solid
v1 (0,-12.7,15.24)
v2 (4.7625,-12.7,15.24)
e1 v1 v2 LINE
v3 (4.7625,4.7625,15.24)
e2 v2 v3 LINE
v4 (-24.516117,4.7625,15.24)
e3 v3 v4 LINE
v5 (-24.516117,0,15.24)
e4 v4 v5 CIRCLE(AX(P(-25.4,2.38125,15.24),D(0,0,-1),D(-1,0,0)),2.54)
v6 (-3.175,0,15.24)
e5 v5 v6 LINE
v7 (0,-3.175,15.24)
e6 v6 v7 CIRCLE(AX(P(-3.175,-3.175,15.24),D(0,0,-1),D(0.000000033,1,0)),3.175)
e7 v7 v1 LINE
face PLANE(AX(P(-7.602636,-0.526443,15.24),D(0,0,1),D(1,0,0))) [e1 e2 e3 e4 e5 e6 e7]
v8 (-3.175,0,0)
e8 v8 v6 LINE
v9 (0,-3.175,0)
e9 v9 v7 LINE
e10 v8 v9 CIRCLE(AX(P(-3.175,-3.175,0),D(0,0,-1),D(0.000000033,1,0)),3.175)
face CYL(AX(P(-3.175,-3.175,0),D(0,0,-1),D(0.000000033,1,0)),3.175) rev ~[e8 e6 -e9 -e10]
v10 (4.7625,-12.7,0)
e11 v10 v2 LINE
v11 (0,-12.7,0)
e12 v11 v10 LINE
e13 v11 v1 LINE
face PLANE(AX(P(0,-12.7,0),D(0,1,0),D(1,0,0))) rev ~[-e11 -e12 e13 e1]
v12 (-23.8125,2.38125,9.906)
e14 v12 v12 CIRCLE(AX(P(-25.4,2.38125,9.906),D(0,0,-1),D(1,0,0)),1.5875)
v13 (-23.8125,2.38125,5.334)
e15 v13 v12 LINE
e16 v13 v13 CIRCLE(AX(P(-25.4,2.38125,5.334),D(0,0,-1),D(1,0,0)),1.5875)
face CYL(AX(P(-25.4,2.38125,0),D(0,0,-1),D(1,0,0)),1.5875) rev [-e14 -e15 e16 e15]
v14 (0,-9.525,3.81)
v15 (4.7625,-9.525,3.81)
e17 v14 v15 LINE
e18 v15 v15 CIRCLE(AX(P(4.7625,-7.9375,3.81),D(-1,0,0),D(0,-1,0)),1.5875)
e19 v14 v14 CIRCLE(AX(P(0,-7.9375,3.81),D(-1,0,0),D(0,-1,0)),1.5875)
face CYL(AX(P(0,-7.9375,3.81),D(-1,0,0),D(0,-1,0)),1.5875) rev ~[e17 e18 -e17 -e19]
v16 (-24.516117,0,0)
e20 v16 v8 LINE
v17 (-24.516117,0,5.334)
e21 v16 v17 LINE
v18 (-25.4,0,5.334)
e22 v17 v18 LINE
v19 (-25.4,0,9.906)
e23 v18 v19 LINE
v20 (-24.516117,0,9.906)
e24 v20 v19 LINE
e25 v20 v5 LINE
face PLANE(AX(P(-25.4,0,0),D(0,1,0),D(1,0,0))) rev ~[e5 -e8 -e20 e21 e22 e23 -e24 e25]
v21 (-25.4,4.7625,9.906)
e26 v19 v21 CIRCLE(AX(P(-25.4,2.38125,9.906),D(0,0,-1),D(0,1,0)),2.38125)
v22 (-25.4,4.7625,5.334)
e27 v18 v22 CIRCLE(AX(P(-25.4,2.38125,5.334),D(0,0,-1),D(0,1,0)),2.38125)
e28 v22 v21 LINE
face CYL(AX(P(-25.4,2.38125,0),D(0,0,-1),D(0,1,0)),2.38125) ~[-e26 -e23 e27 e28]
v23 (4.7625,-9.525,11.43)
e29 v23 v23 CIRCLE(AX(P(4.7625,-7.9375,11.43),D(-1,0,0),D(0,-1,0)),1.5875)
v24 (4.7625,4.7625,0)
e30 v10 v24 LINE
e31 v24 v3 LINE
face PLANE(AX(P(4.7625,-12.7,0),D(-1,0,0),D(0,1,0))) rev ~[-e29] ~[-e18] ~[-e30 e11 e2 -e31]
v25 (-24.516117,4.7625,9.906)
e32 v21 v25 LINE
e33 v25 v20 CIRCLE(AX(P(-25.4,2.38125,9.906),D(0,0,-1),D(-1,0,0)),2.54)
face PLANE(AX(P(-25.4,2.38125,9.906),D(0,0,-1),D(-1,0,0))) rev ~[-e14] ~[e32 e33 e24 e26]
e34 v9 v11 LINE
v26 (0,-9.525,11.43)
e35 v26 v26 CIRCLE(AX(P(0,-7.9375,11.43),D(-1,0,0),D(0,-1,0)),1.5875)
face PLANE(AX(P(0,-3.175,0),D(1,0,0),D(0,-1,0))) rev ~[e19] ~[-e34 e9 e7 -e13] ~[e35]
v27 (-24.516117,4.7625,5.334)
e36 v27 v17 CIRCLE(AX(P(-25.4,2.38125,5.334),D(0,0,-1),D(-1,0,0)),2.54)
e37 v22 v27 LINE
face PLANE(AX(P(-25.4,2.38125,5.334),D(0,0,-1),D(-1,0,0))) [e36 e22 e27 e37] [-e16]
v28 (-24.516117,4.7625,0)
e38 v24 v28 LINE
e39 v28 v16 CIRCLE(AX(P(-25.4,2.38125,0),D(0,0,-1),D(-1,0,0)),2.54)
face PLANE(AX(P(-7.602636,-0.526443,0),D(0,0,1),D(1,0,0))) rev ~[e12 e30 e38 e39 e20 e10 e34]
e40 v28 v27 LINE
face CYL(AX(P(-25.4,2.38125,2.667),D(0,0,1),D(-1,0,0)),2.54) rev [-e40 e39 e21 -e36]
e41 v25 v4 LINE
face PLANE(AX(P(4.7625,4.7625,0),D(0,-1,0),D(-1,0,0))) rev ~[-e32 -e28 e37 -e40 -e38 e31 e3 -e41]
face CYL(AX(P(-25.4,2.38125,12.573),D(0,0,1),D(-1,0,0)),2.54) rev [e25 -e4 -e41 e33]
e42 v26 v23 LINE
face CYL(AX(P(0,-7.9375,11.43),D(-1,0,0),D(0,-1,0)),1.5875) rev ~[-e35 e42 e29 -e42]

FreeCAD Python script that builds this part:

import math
import FreeCAD as App
import Part
import Sketcher

V = App.Vector
Q = App.Units.Quantity

doc = App.newDocument("Part")
body = doc.addObject("PartDesign::Body", "Body")

# Sketch on XY plane
sketch1 = body.newObject("Sketcher::SketchObject", "Sketch")
sketch1.AttachmentSupport = (doc.getObject("XY_Plane"), [""])
sketch1.MapMode = "FlatFace"
sketch1.addGeometry([
    Part.ArcOfCircle(Part.Circle(V(-3.175, -3.175, 0), V(0, 0, 1), 3.175), math.radians(0.000002), math.radians(89.999998)),  # 0
    Part.LineSegment(V(0, -3.175, 0), V(0, -12.7, 0)),  # 1
    Part.LineSegment(V(0, -12.7, 0), V(4.7625, -12.7, 0)),  # 2
    Part.LineSegment(V(4.7625, -12.7, 0), V(4.7625, 4.7625, 0)),  # 3
    Part.LineSegment(V(4.7625, 4.7625, 0), V(-25.4, 4.7625, 0)),  # 4
    Part.ArcOfCircle(Part.Circle(V(-25.4, 2.38125, 0), V(0, 0, 1), 2.38125), math.radians(90), math.radians(270)),  # 5
    Part.LineSegment(V(-25.4, 0, 0), V(-3.175, 0, 0)),  # 6
    Part.Circle(V(-25.4, 2.38125, 0), V(0, 0, 1), 1.5875),  # 7
], False)
sketch1.addConstraint([
    Sketcher.Constraint("Tangent", 0, 1, 1, 1),
    Sketcher.Constraint("Coincident", 1, 2, 2, 1),
    Sketcher.Constraint("Coincident", 2, 2, 3, 1),
    Sketcher.Constraint("Coincident", 3, 2, 4, 1),
    Sketcher.Constraint("Tangent", 4, 2, 5, 1),
    Sketcher.Constraint("Tangent", 5, 2, 6, 1),
    Sketcher.Constraint("Tangent", 6, 2, 0, 2),
    Sketcher.Constraint("Vertical", 1),
    Sketcher.Constraint("Horizontal", 2),
    Sketcher.Constraint("Vertical", 3),
    Sketcher.Constraint("Horizontal", 4),
    Sketcher.Constraint("Horizontal", 6),
    Sketcher.Constraint("Coincident", 7, 3, 5, 3),
    Sketcher.Constraint("PointOnObject", 0, 1, -2),
    Sketcher.Constraint("PointOnObject", 5, 2, -1),
    Sketcher.Constraint("Diameter", 7, Q("0.125 in")),
    Sketcher.Constraint("DistanceX", 5, 3, -1, 1, Q("1 in")),
    Sketcher.Constraint("Radius", 0, Q("0.125 in")),
    Sketcher.Constraint("Radius", 5, Q("0.09375 in")),
    Sketcher.Constraint("DistanceY", 1, 2, -1, 1, Q("0.5 in")),
    Sketcher.Constraint("DistanceX", 2, 1, 2, 2, Q("0.1875 in")),
])
pad1 = body.newObject("PartDesign::Pad", "Pad")
pad1.Profile = sketch1
pad1.Length = Q("0.6 in")

# Sketch on XZ plane
sketch2 = body.newObject("Sketcher::SketchObject", "Sketch001")
sketch2.AttachmentSupport = (doc.getObject("XZ_Plane"), [""])
sketch2.MapMode = "FlatFace"
sketch2.AttachmentOffset = App.Placement(V(0, 0, -0.09375 * 25.4), App.Rotation())
sketch2.addGeometry([
    Part.LineSegment(V(-27.94, 15.24, 0), V(-27.94, 9.906, 0)),  # 0
    Part.LineSegment(V(-27.94, 9.906, 0), V(-25.4, 9.906, 0)),  # 1
    Part.LineSegment(V(-25.4, 9.906, 0), V(-25.4, 15.24, 0)),  # 2
    Part.LineSegment(V(-25.4, 15.24, 0), V(-27.94, 15.24, 0)),  # 3
    Part.LineSegment(V(-27.94, 5.334, 0), V(-27.94, 0, 0)),  # 4
    Part.LineSegment(V(-27.94, 0, 0), V(-25.4, 0, 0)),  # 5
    Part.LineSegment(V(-25.4, 0, 0), V(-25.4, 5.334, 0)),  # 6
    Part.LineSegment(V(-25.4, 5.334, 0), V(-27.94, 5.334, 0)),  # 7
], False)
sketch2.addGeometry(Part.LineSegment(V(-25.4, 15.24, 0), V(-25.4, 0, 0)), True)  # axis
sketch2.addConstraint([
    Sketcher.Constraint("Coincident", 0, 2, 1, 1),
    Sketcher.Constraint("Coincident", 1, 2, 2, 1),
    Sketcher.Constraint("Coincident", 2, 2, 3, 1),
    Sketcher.Constraint("Coincident", 3, 2, 0, 1),
    Sketcher.Constraint("Coincident", 4, 2, 5, 1),
    Sketcher.Constraint("Coincident", 5, 2, 6, 1),
    Sketcher.Constraint("Coincident", 6, 2, 7, 1),
    Sketcher.Constraint("Coincident", 7, 2, 4, 1),
    Sketcher.Constraint("Vertical", 0),
    Sketcher.Constraint("Horizontal", 1),
    Sketcher.Constraint("Vertical", 2),
    Sketcher.Constraint("Horizontal", 3),
    Sketcher.Constraint("Vertical", 4),
    Sketcher.Constraint("Horizontal", 5),
    Sketcher.Constraint("Vertical", 6),
    Sketcher.Constraint("Horizontal", 7),
    Sketcher.Constraint("Vertical", 8),
    Sketcher.Constraint("Coincident", 8, 1, 2, 2),
    Sketcher.Constraint("Coincident", 8, 2, 5, 2),
    Sketcher.Constraint("PointOnObject", 4, 2, -1),
    Sketcher.Constraint("Vertical", 3, 2, 4, 2),
    Sketcher.Constraint("Equal", 2, 4),
    Sketcher.Constraint("DistanceX", 1, 1, 1, 2, Q("0.1 in")),
    Sketcher.Constraint("DistanceY", 8, 2, 8, 1, Q("0.6 in")),
    Sketcher.Constraint("DistanceX", 1, 2, -1, 1, Q("1 in")),
    Sketcher.Constraint("DistanceY", 0, 2, 0, 1, Q("0.21 in")),
])
groove = body.newObject("PartDesign::Groove", "Groove")
groove.Profile = sketch2
groove.ReferenceAxis = (sketch2, ["Axis0"])
groove.Angle = 360

# Sketch on YZ plane
sketch3 = body.newObject("Sketcher::SketchObject", "Sketch002")
sketch3.AttachmentSupport = (doc.getObject("YZ_Plane"), [""])
sketch3.MapMode = "FlatFace"
sketch3.addGeometry([
    Part.Circle(V(-7.9375, 11.43, 0), V(0, 0, 1), 1.5875),
    Part.Circle(V(-7.9375, 3.81, 0), V(0, 0, 1), 1.5875),
], False)
sketch3.addConstraint([
    Sketcher.Constraint("Equal", 0, 1),
    Sketcher.Constraint("Vertical", 0, 3, 1, 3),
    Sketcher.Constraint("Diameter", 0, Q("0.125 in")),
    Sketcher.Constraint("DistanceY", 1, 3, 0, 3, Q("0.3 in")),
    Sketcher.Constraint("DistanceY", -1, 1, 0, 3, Q("0.45 in")),
    Sketcher.Constraint("DistanceX", 0, 3, -1, 1, Q("0.3125 in")),
])
pocket1 = body.newObject("PartDesign::Pocket", "Pocket")
pocket1.Profile = sketch3
pocket1.Type = "ThroughAll"
pocket1.Reversed = True

doc.recompute()
